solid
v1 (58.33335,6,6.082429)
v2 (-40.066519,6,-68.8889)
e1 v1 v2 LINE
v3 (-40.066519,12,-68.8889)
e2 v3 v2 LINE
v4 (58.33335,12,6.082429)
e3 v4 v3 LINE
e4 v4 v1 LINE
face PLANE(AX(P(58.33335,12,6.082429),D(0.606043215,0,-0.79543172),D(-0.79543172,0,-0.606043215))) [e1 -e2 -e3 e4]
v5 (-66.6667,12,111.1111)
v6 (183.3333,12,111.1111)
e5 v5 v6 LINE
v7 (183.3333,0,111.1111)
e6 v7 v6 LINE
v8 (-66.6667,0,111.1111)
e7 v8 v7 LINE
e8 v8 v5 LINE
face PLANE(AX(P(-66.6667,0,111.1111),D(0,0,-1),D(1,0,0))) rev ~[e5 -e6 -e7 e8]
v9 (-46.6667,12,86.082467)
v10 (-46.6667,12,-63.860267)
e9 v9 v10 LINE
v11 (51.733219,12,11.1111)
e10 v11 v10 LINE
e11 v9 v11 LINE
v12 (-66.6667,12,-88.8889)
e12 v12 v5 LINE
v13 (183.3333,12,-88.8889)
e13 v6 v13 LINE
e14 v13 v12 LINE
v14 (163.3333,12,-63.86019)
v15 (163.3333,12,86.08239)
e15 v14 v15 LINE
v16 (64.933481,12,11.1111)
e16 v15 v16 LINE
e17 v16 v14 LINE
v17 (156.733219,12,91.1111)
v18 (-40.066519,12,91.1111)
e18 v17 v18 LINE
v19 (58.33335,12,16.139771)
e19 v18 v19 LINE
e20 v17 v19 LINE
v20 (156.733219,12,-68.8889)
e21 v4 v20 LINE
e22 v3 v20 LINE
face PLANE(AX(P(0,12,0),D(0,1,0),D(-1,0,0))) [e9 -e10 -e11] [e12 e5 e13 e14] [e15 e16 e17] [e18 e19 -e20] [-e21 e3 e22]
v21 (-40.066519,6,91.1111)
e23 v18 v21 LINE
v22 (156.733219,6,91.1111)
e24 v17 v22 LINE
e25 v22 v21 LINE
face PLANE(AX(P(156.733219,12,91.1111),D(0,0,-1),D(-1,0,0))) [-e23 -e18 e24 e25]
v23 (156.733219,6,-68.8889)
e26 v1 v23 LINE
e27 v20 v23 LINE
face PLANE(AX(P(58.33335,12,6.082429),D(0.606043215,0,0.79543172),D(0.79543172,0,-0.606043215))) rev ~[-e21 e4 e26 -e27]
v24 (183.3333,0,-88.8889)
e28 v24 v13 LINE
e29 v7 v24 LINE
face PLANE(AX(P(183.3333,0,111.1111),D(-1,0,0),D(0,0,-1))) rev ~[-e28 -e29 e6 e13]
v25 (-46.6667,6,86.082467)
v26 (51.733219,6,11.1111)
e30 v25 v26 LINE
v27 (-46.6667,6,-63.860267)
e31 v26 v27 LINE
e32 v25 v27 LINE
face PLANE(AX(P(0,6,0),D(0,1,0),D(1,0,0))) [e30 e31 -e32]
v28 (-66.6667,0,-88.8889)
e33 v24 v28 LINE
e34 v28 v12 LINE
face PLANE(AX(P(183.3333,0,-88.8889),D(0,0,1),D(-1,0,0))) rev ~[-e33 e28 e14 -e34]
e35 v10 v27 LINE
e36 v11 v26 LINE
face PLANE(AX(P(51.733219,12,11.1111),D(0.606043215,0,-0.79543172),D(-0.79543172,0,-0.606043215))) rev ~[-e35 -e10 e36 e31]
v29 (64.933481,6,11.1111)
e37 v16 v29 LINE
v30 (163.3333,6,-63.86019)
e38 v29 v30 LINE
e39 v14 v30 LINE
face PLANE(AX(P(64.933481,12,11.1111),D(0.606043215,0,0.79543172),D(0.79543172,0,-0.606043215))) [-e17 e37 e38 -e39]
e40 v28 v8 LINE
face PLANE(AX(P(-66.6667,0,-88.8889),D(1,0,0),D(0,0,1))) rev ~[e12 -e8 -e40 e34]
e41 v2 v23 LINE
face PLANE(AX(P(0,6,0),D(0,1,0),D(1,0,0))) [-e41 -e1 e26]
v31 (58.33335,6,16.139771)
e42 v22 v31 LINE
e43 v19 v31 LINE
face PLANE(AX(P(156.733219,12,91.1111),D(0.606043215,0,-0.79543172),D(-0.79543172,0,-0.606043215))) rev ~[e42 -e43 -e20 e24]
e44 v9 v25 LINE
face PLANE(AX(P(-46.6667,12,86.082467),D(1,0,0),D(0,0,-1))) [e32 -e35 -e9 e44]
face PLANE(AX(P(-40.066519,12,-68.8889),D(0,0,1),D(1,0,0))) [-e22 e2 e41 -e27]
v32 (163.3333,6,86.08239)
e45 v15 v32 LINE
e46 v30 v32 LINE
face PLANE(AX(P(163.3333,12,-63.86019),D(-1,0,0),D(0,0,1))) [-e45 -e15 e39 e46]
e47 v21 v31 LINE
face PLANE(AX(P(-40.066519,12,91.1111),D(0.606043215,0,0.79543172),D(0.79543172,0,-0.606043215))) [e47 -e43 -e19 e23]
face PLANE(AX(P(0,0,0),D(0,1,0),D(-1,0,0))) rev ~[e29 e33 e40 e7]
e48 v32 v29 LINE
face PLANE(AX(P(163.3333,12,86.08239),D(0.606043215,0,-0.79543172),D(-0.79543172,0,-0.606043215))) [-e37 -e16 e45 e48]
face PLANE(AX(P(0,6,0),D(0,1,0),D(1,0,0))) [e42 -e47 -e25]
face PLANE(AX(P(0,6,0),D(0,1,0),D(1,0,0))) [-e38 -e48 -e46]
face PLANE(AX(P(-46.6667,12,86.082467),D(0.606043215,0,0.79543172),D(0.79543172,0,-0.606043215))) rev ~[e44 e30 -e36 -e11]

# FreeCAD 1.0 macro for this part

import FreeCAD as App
import Part
import Sketcher


def add_polygon(sketch, points):
    """Adds a closed chain of lines whose ends are joined by coincident constraints."""
    first, n = sketch.GeometryCount, len(points)
    for a, b in zip(points, points[1:] + points[:1]):
        sketch.addGeometry(Part.LineSegment(App.Vector(*a, 0), App.Vector(*b, 0)), False)
    for i in range(n):
        sketch.addConstraint(Sketcher.Constraint("Coincident", first + i, 2, first + (i + 1) % n, 1))

doc = App.newDocument("Part")
body = doc.addObject("PartDesign::Body", "Body")

sketch1 = doc.addObject("Sketcher::SketchObject", "Sketch")
body.addObject(sketch1)
sketch1.AttachmentSupport = (doc.XZ_Plane, [""])
sketch1.MapMode = "FlatFace"
add_polygon(sketch1, [(-67, -89), (-67, 111), (183, 111), (183, -89)])
sketch1.addConstraint(Sketcher.Constraint("Vertical", 0))
sketch1.addConstraint(Sketcher.Constraint("Horizontal", 1))
sketch1.addConstraint(Sketcher.Constraint("Vertical", 2))
sketch1.addConstraint(Sketcher.Constraint("Horizontal", 3))
sketch1.addConstraint(Sketcher.Constraint("DistanceX", 1, 1, 1, 2, 250.0))
sketch1.addConstraint(Sketcher.Constraint("DistanceY", 0, 1, 0, 2, 200.0))
sketch1.addConstraint(Sketcher.Constraint("DistanceY", -1, 1, 0, 2, 111.111))
sketch1.addConstraint(Sketcher.Constraint("DistanceX", 0, 2, -1, 1, 66.6667))
pad1 = doc.addObject("PartDesign::Pad", "Pad")
body.addObject(pad1)
pad1.Profile = sketch1
pad1.Length = 12
pad1.Reversed = True

sketch2 = doc.addObject("Sketcher::SketchObject", "Sketch001")
body.addObject(sketch2)
sketch2.AttachmentSupport = (doc.XZ_Plane, [""])
sketch2.MapMode = "FlatFace"
sketch2.AttachmentOffset = App.Placement(App.Vector(0, 0, -12), App.Rotation())
add_polygon(sketch2, [(-47, -64), (-47, 86), (52, 11)])
add_polygon(sketch2, [(58, 16), (-40, 91), (157, 91)])
add_polygon(sketch2, [(157, -69), (-40, -69), (58, 6)])
add_polygon(sketch2, [(65, 11), (163, 86), (163, -64)])
sketch2.addConstraint(Sketcher.Constraint("Vertical", 0))
sketch2.addConstraint(Sketcher.Constraint("Horizontal", 4))
sketch2.addConstraint(Sketcher.Constraint("Horizontal", 6))
sketch2.addConstraint(Sketcher.Constraint("Vertical", 10))
sketch2.addConstraint(Sketcher.Constraint("Parallel", 1, 3))
sketch2.addConstraint(Sketcher.Constraint("Parallel", 2, 5))
sketch2.addConstraint(Sketcher.Constraint("Parallel", 5, 7))
sketch2.addConstraint(Sketcher.Constraint("Parallel", 3, 8))
sketch2.addConstraint(Sketcher.Constraint("Parallel", 7, 9))
sketch2.addConstraint(Sketcher.Constraint("Parallel", 8, 11))
sketch2.addConstraint(Sketcher.Constraint("Horizontal", 0, 2, 9, 2))
sketch2.addConstraint(Sketcher.Constraint("Horizontal", 2, 2, 10, 2))
sketch2.addConstraint(Sketcher.Constraint("Horizontal", 1, 2, 11, 2))
sketch2.addConstraint(Sketcher.Constraint("Vertical", 3, 2, 6, 2))
sketch2.addConstraint(Sketcher.Constraint("Vertical", 5, 2, 7, 2))
sketch2.addConstraint(Sketcher.Constraint("Equal", 2, 3))
sketch2.addConstraint(Sketcher.Constraint("DistanceY", 1, 2, 3, 2, 80.0))
sketch2.addConstraint(Sketcher.Constraint("DistanceX", 1, 2, 4, 2, 105.0))
sketch2.addConstraint(Sketcher.Constraint("DistanceY", 6, 2, 1, 2, 80.0))
sketch2.addConstraint(Sketcher.Constraint("DistanceX", 5, 2, 9, 2, 105.0))
sketch2.addConstraint(Sketcher.Constraint("DistanceX", 0, 2, 1, 2, 98.4))
sketch2.addConstraint(Sketcher.Constraint("DistanceY", 0, 1, 0, 2, 149.9427))
sketch2.addConstraint(Sketcher.Constraint("DistanceY", -1, 1, 1, 2, 11.111))
sketch2.addConstraint(Sketcher.Constraint("DistanceX", 0, 2, -1, 1, 46.6667))
pocket1 = doc.addObject("PartDesign::Pocket", "Pocket")
body.addObject(pocket1)
pocket1.Profile = sketch2
pocket1.Length = 6
pocket1.Reversed = True

doc.recompute()
